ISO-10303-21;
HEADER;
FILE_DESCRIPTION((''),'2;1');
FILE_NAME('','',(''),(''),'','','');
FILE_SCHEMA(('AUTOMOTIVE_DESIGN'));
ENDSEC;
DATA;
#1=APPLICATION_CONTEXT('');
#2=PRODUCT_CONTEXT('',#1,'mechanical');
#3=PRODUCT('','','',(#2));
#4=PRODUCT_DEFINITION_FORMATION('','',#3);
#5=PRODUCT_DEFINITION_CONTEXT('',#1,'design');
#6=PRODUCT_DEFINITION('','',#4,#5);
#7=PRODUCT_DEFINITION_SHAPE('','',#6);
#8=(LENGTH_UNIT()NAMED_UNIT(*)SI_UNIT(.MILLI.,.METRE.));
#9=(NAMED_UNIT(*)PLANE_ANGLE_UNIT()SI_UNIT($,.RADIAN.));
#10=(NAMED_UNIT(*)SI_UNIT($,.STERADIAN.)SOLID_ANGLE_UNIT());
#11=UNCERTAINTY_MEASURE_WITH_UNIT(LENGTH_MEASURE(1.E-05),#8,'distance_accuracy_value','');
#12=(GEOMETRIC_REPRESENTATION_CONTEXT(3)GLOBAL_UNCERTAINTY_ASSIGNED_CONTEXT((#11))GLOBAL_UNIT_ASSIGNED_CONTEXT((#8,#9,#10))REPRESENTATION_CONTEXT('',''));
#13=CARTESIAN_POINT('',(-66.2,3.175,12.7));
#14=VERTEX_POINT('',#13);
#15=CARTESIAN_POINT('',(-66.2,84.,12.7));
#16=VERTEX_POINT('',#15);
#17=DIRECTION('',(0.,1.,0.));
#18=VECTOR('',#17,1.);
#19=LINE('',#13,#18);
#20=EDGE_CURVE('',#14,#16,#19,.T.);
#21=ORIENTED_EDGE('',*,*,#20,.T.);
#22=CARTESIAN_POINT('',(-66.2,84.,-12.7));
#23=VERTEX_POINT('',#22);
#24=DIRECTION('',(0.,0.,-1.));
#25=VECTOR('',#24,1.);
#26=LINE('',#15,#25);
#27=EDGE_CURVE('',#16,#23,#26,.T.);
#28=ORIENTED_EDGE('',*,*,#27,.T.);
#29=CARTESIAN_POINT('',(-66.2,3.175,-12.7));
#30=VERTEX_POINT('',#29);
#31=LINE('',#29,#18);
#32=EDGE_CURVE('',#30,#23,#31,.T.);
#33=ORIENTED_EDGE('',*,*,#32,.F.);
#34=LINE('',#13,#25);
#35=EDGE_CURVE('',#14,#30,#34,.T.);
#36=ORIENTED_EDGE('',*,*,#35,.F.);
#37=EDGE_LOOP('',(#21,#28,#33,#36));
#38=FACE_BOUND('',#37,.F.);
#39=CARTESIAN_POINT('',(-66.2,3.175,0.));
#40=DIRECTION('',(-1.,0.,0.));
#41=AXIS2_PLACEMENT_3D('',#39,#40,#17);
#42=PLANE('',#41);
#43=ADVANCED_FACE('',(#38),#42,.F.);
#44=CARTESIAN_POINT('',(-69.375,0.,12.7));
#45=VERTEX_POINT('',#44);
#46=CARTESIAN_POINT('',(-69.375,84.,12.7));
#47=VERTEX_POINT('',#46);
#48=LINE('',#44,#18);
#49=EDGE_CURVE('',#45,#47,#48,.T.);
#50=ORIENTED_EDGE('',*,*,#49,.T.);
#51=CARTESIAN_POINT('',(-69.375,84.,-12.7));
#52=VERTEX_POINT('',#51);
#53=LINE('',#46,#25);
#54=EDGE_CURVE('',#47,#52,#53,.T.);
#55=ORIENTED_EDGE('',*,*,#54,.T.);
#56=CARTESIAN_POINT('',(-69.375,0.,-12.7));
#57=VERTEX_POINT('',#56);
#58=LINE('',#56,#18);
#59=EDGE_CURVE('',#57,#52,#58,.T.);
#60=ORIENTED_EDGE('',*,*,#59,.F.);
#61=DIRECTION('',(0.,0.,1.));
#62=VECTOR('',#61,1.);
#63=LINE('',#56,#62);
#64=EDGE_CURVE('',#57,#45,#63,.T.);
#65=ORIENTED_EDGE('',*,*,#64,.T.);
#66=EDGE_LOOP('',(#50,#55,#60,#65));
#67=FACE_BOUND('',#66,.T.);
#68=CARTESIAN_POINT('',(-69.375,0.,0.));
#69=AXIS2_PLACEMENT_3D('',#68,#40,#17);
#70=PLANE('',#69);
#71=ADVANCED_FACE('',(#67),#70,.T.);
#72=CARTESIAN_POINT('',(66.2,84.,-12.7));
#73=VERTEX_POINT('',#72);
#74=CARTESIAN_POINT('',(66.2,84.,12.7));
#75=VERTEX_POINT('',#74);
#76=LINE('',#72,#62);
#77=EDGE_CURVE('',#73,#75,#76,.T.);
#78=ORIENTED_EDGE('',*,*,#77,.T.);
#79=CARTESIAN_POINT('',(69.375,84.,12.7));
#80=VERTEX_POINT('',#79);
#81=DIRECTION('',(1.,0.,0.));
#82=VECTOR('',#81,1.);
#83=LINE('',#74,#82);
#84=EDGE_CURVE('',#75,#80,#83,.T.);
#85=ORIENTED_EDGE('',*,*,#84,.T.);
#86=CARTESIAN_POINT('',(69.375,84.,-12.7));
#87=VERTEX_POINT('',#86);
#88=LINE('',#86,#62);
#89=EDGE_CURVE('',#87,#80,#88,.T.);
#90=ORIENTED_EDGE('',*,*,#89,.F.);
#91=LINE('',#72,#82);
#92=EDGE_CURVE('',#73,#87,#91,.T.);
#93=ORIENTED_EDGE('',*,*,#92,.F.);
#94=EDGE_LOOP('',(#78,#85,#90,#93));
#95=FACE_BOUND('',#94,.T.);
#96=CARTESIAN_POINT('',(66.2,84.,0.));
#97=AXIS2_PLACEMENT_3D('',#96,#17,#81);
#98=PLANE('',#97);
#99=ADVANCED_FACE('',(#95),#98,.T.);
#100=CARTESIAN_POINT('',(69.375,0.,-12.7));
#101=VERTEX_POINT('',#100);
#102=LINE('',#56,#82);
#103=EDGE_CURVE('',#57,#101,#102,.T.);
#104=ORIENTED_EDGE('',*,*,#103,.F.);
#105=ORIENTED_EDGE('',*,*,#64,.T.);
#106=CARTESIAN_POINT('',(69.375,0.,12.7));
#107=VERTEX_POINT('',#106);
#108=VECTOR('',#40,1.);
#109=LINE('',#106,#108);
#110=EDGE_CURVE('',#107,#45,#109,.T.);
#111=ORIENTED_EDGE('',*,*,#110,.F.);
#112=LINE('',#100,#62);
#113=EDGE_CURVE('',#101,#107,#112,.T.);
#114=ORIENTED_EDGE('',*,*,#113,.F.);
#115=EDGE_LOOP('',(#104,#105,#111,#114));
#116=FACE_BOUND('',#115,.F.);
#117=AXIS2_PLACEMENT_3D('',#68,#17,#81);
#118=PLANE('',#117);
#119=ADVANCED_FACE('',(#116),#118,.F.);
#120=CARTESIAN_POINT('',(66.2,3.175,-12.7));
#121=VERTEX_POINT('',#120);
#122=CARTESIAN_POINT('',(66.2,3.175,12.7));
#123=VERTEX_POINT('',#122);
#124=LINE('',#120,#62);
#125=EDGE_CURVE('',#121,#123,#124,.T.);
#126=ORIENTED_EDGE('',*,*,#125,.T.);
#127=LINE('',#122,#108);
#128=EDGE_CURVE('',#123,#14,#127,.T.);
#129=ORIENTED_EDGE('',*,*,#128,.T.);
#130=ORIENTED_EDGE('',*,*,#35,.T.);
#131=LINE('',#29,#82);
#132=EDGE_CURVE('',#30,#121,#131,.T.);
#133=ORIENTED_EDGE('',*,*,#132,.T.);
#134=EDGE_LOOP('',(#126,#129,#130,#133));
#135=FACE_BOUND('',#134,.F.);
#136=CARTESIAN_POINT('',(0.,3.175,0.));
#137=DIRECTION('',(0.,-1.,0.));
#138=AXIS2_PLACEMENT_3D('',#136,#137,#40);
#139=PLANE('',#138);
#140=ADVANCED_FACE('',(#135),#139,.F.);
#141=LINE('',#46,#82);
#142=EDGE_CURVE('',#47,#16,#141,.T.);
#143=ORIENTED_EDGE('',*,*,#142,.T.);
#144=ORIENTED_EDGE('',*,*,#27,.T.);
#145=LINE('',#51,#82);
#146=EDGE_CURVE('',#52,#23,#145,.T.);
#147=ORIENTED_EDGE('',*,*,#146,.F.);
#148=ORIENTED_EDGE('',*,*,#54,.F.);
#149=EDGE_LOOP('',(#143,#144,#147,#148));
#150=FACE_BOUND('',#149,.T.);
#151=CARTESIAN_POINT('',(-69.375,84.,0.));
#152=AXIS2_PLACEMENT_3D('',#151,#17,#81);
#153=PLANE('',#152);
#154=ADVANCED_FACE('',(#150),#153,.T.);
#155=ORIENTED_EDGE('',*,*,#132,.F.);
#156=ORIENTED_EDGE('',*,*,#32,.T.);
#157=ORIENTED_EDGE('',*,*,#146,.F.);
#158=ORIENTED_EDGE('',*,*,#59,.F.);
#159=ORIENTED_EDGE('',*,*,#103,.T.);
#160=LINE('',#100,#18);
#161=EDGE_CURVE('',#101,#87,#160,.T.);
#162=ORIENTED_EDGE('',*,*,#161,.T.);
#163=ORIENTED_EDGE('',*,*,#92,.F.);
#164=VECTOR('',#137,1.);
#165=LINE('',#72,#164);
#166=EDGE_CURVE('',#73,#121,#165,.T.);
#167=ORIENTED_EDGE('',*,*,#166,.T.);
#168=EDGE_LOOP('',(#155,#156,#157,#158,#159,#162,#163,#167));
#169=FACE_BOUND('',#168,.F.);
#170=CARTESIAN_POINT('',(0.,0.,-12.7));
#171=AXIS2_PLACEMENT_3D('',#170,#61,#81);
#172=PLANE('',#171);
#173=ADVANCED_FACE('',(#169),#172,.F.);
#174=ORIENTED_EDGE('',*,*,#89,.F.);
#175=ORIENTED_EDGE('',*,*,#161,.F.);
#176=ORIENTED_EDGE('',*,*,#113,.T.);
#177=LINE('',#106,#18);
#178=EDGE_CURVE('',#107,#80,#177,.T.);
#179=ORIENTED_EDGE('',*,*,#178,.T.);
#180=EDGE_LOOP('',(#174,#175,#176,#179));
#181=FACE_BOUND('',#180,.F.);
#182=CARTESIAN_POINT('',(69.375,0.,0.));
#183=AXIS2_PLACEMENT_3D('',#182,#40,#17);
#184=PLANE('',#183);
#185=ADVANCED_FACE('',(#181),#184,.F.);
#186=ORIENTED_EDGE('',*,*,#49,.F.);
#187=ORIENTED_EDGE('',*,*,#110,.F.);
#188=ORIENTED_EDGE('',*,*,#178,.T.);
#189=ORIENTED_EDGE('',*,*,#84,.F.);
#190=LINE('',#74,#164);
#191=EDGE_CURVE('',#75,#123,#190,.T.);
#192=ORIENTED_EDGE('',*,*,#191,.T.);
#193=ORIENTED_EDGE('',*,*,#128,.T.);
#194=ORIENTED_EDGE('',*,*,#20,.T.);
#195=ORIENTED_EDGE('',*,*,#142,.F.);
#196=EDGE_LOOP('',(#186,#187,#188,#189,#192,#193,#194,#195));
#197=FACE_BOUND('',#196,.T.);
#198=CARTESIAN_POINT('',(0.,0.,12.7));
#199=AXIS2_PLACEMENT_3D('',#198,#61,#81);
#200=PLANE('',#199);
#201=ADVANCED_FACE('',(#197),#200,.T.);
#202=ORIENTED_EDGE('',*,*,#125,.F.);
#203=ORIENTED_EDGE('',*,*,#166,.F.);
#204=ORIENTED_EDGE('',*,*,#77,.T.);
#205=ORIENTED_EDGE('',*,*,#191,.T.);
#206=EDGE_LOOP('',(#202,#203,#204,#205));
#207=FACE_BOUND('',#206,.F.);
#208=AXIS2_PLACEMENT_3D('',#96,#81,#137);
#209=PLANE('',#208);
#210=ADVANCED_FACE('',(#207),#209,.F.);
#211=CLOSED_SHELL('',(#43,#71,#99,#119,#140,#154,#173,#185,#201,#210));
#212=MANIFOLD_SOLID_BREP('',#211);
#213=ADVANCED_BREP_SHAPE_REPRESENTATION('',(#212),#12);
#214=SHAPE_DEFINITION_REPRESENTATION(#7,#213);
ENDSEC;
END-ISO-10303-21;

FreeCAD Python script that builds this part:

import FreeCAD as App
import Part
import Sketcher
Q = App.Units.Quantity

doc = App.newDocument("Part")
body = doc.addObject("PartDesign::Body", "Body")

# Sketch on XY plane
sketch1 = body.newObject("Sketcher::SketchObject", "Sketch")
sketch1.AttachmentSupport = (doc.getObject("XY_Plane"), [""])
sketch1.MapMode = "FlatFace"
sketch1.addGeometry([
    Part.LineSegment(App.Vector(-69.375, 84, 0), App.Vector(-69.375, 0, 0)),  # 0
    Part.LineSegment(App.Vector(-69.375, 0, 0), App.Vector(69.375, 0, 0)),  # 1
    Part.LineSegment(App.Vector(69.375, 0, 0), App.Vector(69.375, 84, 0)),  # 2
    Part.LineSegment(App.Vector(69.375, 84, 0), App.Vector(66.2, 84, 0)),  # 3
    Part.LineSegment(App.Vector(66.2, 84, 0), App.Vector(66.2, 3.175, 0)),  # 4
    Part.LineSegment(App.Vector(66.2, 3.175, 0), App.Vector(-66.2, 3.175, 0)),  # 5
    Part.LineSegment(App.Vector(-66.2, 3.175, 0), App.Vector(-66.2, 84, 0)),  # 6
    Part.LineSegment(App.Vector(-66.2, 84, 0), App.Vector(-69.375, 84, 0)),  # 7
], False)
sketch1.addConstraint([
    Sketcher.Constraint("Coincident", 0, 2, 1, 1),
    Sketcher.Constraint("Coincident", 1, 2, 2, 1),
    Sketcher.Constraint("Coincident", 2, 2, 3, 1),
    Sketcher.Constraint("Coincident", 3, 2, 4, 1),
    Sketcher.Constraint("Coincident", 4, 2, 5, 1),
    Sketcher.Constraint("Coincident", 5, 2, 6, 1),
    Sketcher.Constraint("Coincident", 6, 2, 7, 1),
    Sketcher.Constraint("Coincident", 7, 2, 0, 1),
    Sketcher.Constraint("Vertical", 0),
    Sketcher.Constraint("Horizontal", 1),
    Sketcher.Constraint("Vertical", 2),
    Sketcher.Constraint("Horizontal", 3),
    Sketcher.Constraint("Vertical", 4),
    Sketcher.Constraint("Horizontal", 5),
    Sketcher.Constraint("Vertical", 6),
    Sketcher.Constraint("Horizontal", 7),
    Sketcher.Constraint("Symmetric", 0, 2, 1, 2, -1, 1),
    Sketcher.Constraint("Symmetric", 3, 2, 6, 2, -2),
    Sketcher.Constraint("DistanceX", 3, 2, 3, 1, Q("0.125 in")),
    Sketcher.Constraint("DistanceX", 5, 2, 5, 1, Q("5.2126 in")),
    Sketcher.Constraint("DistanceY", -1, 1, 4, 2, Q("0.125 in")),
    Sketcher.Constraint("DistanceY", 0, 2, 0, 1, Q("84 mm")),
])
pad1 = body.newObject("PartDesign::Pad", "Pad")
pad1.Profile = sketch1
pad1.Length = Q("1 in")
pad1.Midplane = True

doc.recompute()
